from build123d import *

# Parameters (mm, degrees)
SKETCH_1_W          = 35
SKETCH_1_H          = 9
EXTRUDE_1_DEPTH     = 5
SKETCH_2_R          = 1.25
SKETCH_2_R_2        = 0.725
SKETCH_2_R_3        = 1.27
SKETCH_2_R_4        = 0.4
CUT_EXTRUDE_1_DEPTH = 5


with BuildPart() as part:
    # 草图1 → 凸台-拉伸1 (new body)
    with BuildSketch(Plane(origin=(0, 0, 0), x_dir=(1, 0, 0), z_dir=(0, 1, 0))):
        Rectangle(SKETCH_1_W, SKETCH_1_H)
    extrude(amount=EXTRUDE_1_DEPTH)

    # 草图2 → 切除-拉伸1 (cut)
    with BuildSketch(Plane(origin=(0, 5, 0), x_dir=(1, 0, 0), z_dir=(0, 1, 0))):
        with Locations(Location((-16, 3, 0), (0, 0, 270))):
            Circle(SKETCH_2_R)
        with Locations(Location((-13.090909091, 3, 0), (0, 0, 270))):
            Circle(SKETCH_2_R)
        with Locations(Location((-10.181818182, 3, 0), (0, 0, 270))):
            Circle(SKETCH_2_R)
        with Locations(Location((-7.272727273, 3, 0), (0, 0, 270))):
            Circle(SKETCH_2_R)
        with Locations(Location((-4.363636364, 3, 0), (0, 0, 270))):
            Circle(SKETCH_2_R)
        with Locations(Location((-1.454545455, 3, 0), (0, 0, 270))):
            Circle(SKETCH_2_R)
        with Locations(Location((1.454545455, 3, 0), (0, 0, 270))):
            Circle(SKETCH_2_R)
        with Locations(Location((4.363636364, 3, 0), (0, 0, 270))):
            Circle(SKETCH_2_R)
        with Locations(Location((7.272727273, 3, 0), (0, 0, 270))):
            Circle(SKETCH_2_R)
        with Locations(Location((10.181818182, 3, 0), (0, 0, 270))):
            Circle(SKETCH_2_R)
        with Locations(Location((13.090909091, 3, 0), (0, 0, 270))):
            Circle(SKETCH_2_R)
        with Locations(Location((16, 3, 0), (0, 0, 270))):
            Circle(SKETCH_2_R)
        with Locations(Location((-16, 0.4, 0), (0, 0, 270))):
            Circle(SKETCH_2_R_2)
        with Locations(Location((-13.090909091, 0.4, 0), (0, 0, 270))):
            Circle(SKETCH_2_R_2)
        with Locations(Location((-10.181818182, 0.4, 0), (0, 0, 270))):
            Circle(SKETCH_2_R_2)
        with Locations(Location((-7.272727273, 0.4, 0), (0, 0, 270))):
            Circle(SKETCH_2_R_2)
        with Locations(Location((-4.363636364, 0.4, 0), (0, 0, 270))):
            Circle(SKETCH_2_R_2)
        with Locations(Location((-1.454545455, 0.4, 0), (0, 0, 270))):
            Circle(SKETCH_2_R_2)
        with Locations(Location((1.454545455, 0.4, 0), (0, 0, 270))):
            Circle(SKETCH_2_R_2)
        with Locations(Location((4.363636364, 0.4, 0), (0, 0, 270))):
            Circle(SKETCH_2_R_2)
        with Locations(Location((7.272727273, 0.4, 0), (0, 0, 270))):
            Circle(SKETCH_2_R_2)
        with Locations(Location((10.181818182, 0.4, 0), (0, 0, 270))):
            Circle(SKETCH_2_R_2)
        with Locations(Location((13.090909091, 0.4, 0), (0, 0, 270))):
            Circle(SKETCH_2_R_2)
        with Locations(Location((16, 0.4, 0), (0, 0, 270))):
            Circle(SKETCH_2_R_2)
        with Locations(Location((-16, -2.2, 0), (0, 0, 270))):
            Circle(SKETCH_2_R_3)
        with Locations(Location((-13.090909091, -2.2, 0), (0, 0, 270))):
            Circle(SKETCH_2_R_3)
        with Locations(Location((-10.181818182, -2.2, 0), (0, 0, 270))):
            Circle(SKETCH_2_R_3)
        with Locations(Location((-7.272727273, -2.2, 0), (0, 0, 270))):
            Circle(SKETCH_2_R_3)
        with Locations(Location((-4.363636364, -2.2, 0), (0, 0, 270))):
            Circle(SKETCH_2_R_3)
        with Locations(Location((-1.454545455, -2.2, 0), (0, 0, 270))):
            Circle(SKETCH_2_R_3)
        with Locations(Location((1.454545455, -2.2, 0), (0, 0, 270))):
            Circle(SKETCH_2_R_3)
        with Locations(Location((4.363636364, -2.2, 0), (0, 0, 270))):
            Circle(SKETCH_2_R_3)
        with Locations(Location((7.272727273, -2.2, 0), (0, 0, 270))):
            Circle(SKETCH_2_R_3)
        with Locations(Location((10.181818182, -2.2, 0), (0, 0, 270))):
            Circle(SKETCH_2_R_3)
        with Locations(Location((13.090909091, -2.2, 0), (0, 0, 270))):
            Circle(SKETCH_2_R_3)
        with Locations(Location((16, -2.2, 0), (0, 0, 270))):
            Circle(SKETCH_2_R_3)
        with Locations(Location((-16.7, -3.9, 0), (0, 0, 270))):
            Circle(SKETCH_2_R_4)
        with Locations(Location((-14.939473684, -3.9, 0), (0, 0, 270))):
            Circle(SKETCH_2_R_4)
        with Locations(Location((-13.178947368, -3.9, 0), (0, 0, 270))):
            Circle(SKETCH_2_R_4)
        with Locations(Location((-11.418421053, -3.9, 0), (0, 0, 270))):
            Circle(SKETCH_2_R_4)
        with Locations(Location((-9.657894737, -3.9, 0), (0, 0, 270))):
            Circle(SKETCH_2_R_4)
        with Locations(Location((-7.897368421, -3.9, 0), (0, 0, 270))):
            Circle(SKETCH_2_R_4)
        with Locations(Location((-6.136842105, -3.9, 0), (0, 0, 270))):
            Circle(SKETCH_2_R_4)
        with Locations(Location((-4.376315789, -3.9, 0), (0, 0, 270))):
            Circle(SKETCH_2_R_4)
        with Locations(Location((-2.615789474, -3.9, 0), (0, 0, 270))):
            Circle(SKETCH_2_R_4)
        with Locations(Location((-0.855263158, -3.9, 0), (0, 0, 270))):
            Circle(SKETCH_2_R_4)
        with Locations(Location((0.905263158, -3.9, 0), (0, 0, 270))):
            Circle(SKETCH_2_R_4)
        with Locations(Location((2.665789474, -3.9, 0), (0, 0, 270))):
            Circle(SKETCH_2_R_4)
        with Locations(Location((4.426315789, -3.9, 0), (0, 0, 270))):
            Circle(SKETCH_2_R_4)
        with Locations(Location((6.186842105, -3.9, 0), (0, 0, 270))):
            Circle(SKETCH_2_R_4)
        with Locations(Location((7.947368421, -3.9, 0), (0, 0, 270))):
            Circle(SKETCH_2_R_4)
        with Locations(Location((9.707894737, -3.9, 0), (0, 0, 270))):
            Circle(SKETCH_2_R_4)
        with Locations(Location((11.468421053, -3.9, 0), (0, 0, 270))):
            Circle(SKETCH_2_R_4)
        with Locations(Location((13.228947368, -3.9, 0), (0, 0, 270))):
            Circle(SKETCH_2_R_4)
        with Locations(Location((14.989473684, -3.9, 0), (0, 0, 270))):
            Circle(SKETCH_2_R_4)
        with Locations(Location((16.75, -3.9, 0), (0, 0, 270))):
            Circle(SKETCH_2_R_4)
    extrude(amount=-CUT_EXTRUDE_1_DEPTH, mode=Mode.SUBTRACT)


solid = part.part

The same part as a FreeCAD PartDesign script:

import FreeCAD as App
import Part
import Sketcher
from FreeCAD import Vector

doc = App.newDocument("Part")
body = doc.addObject("PartDesign::Body", "Body")

# Sketch on XZ plane
sketch1 = body.newObject("Sketcher::SketchObject", "Sketch")
sketch1.AttachmentSupport = (doc.getObject("XZ_Plane"), [""])
sketch1.MapMode = "FlatFace"
sketch1.addGeometry([
    Part.LineSegment(Vector(-18, -4, 0), Vector(-18, 4, 0)),
    Part.LineSegment(Vector(-18, 4, 0), Vector(18, 4, 0)),
    Part.LineSegment(Vector(18, 4, 0), Vector(18, -4, 0)),
    Part.LineSegment(Vector(18, -4, 0), Vector(-18, -4, 0)),
], False)
sketch1.addConstraint([
    Sketcher.Constraint("Coincident", 0, 2, 1, 1),
    Sketcher.Constraint("Coincident", 1, 2, 2, 1),
    Sketcher.Constraint("Coincident", 2, 2, 3, 1),
    Sketcher.Constraint("Coincident", 3, 2, 0, 1),
    Sketcher.Constraint("Vertical", 0),
    Sketcher.Constraint("Horizontal", 1),
    Sketcher.Constraint("Vertical", 2),
    Sketcher.Constraint("Horizontal", 3),
    Sketcher.Constraint("Symmetric", 0, 2, 2, 2, -1, 1),
    Sketcher.Constraint("DistanceX", 1, 1, 1, 2, 35.0),
    Sketcher.Constraint("DistanceY", 0, 1, 0, 2, 9.0),
])
pad1 = body.newObject("PartDesign::Pad", "Pad")
pad1.Profile = sketch1
pad1.Length = 5
pad1.Reversed = True

# Sketch on XZ plane
sketch2 = body.newObject("Sketcher::SketchObject", "Sketch001")
sketch2.AttachmentSupport = (doc.getObject("XZ_Plane"), [""])
sketch2.MapMode = "FlatFace"
sketch2.AttachmentOffset = App.Placement(Vector(0, 0, -5), App.Rotation())
sketch2.addGeometry([
    Part.Circle(Vector(-16, -3, 0), Vector(0, 0, 1), 1.25),  # 0
    Part.Circle(Vector(-13.09, -3, 0), Vector(0, 0, 1), 1.25),  # 1
    Part.Circle(Vector(-10.18, -3, 0), Vector(0, 0, 1), 1.25),  # 2
    Part.Circle(Vector(-7.27, -3, 0), Vector(0, 0, 1), 1.25),  # 3
    Part.Circle(Vector(-4.36, -3, 0), Vector(0, 0, 1), 1.25),  # 4
    Part.Circle(Vector(-1.45, -3, 0), Vector(0, 0, 1), 1.25),  # 5
    Part.Circle(Vector(1.45, -3, 0), Vector(0, 0, 1), 1.25),  # 6
    Part.Circle(Vector(4.36, -3, 0), Vector(0, 0, 1), 1.25),  # 7
    Part.Circle(Vector(7.27, -3, 0), Vector(0, 0, 1), 1.25),  # 8
    Part.Circle(Vector(10.18, -3, 0), Vector(0, 0, 1), 1.25),  # 9
    Part.Circle(Vector(13.09, -3, 0), Vector(0, 0, 1), 1.25),  # 10
    Part.Circle(Vector(16, -3, 0), Vector(0, 0, 1), 1.25),  # 11
    Part.Circle(Vector(-16, -0.4, 0), Vector(0, 0, 1), 0.72),  # 12
    Part.Circle(Vector(-13.09, -0.4, 0), Vector(0, 0, 1), 0.72),  # 13
    Part.Circle(Vector(-10.18, -0.4, 0), Vector(0, 0, 1), 0.72),  # 14
    Part.Circle(Vector(-7.27, -0.4, 0), Vector(0, 0, 1), 0.72),  # 15
    Part.Circle(Vector(-4.36, -0.4, 0), Vector(0, 0, 1), 0.72),  # 16
    Part.Circle(Vector(-1.45, -0.4, 0), Vector(0, 0, 1), 0.72),  # 17
    Part.Circle(Vector(1.45, -0.4, 0), Vector(0, 0, 1), 0.72),  # 18
    Part.Circle(Vector(4.36, -0.4, 0), Vector(0, 0, 1), 0.72),  # 19
    Part.Circle(Vector(7.27, -0.4, 0), Vector(0, 0, 1), 0.72),  # 20
    Part.Circle(Vector(10.18, -0.4, 0), Vector(0, 0, 1), 0.72),  # 21
    Part.Circle(Vector(13.09, -0.4, 0), Vector(0, 0, 1), 0.72),  # 22
    Part.Circle(Vector(16, -0.4, 0), Vector(0, 0, 1), 0.72),  # 23
    Part.Circle(Vector(-16, 2.2, 0), Vector(0, 0, 1), 1.27),  # 24
    Part.Circle(Vector(-13.09, 2.2, 0), Vector(0, 0, 1), 1.27),  # 25
    Part.Circle(Vector(-10.18, 2.2, 0), Vector(0, 0, 1), 1.27),  # 26
    Part.Circle(Vector(-7.27, 2.2, 0), Vector(0, 0, 1), 1.27),  # 27
    Part.Circle(Vector(-4.36, 2.2, 0), Vector(0, 0, 1), 1.27),  # 28
    Part.Circle(Vector(-1.45, 2.2, 0), Vector(0, 0, 1), 1.27),  # 29
    Part.Circle(Vector(1.45, 2.2, 0), Vector(0, 0, 1), 1.27),  # 30
    Part.Circle(Vector(4.36, 2.2, 0), Vector(0, 0, 1), 1.27),  # 31
    Part.Circle(Vector(7.27, 2.2, 0), Vector(0, 0, 1), 1.27),  # 32
    Part.Circle(Vector(10.18, 2.2, 0), Vector(0, 0, 1), 1.27),  # 33
    Part.Circle(Vector(13.09, 2.2, 0), Vector(0, 0, 1), 1.27),  # 34
    Part.Circle(Vector(16, 2.2, 0), Vector(0, 0, 1), 1.27),  # 35
    Part.Circle(Vector(-16.7, 3.9, 0), Vector(0, 0, 1), 0.4),  # 36
    Part.Circle(Vector(-14.94, 3.9, 0), Vector(0, 0, 1), 0.4),  # 37
    Part.Circle(Vector(-13.18, 3.9, 0), Vector(0, 0, 1), 0.4),  # 38
    Part.Circle(Vector(-11.42, 3.9, 0), Vector(0, 0, 1), 0.4),  # 39
    Part.Circle(Vector(-9.66, 3.9, 0), Vector(0, 0, 1), 0.4),  # 40
    Part.Circle(Vector(-7.9, 3.9, 0), Vector(0, 0, 1), 0.4),  # 41
    Part.Circle(Vector(-6.14, 3.9, 0), Vector(0, 0, 1), 0.4),  # 42
    Part.Circle(Vector(-4.38, 3.9, 0), Vector(0, 0, 1), 0.4),  # 43
    Part.Circle(Vector(-2.62, 3.9, 0), Vector(0, 0, 1), 0.4),  # 44
    Part.Circle(Vector(-0.86, 3.9, 0), Vector(0, 0, 1), 0.4),  # 45
    Part.Circle(Vector(0.91, 3.9, 0), Vector(0, 0, 1), 0.4),  # 46
    Part.Circle(Vector(2.67, 3.9, 0), Vector(0, 0, 1), 0.4),  # 47
    Part.Circle(Vector(4.43, 3.9, 0), Vector(0, 0, 1), 0.4),  # 48
    Part.Circle(Vector(6.19, 3.9, 0), Vector(0, 0, 1), 0.4),  # 49
    Part.Circle(Vector(7.95, 3.9, 0), Vector(0, 0, 1), 0.4),  # 50
    Part.Circle(Vector(9.71, 3.9, 0), Vector(0, 0, 1), 0.4),  # 51
    Part.Circle(Vector(11.47, 3.9, 0), Vector(0, 0, 1), 0.4),  # 52
    Part.Circle(Vector(13.23, 3.9, 0), Vector(0, 0, 1), 0.4),  # 53
    Part.Circle(Vector(14.99, 3.9, 0), Vector(0, 0, 1), 0.4),  # 54
    Part.Circle(Vector(16.75, 3.9, 0), Vector(0, 0, 1), 0.4),  # 55
], False)
sketch2.addConstraint([
    Sketcher.Constraint("Equal", 0, 1),
    Sketcher.Constraint("Equal", 1, 2),
    Sketcher.Constraint("Equal", 2, 3),
    Sketcher.Constraint("Equal", 3, 4),
    Sketcher.Constraint("Equal", 4, 5),
    Sketcher.Constraint("Equal", 5, 6),
    Sketcher.Constraint("Equal", 6, 7),
    Sketcher.Constraint("Equal", 7, 8),
    Sketcher.Constraint("Equal", 8, 9),
    Sketcher.Constraint("Equal", 9, 10),
    Sketcher.Constraint("Equal", 10, 11),
    Sketcher.Constraint("Equal", 12, 13),
    Sketcher.Constraint("Equal", 13, 14),
    Sketcher.Constraint("Equal", 14, 15),
    Sketcher.Constraint("Equal", 15, 16),
    Sketcher.Constraint("Equal", 16, 17),
    Sketcher.Constraint("Equal", 17, 18),
    Sketcher.Constraint("Equal", 18, 19),
    Sketcher.Constraint("Equal", 19, 20),
    Sketcher.Constraint("Equal", 20, 21),
    Sketcher.Constraint("Equal", 21, 22),
    Sketcher.Constraint("Equal", 22, 23),
    Sketcher.Constraint("Equal", 24, 25),
    Sketcher.Constraint("Equal", 25, 26),
    Sketcher.Constraint("Equal", 26, 27),
    Sketcher.Constraint("Equal", 27, 28),
    Sketcher.Constraint("Equal", 28, 29),
    Sketcher.Constraint("Equal", 29, 30),
    Sketcher.Constraint("Equal", 30, 31),
    Sketcher.Constraint("Equal", 31, 32),
    Sketcher.Constraint("Equal", 32, 33),
    Sketcher.Constraint("Equal", 33, 34),
    Sketcher.Constraint("Equal", 34, 35),
    Sketcher.Constraint("Equal", 36, 37),
    Sketcher.Constraint("Equal", 37, 38),
    Sketcher.Constraint("Equal", 38, 39),
    Sketcher.Constraint("Equal", 39, 40),
    Sketcher.Constraint("Equal", 40, 41),
    Sketcher.Constraint("Equal", 41, 42),
    Sketcher.Constraint("Equal", 42, 43),
    Sketcher.Constraint("Equal", 43, 44),
    Sketcher.Constraint("Equal", 44, 45),
    Sketcher.Constraint("Equal", 45, 46),
    Sketcher.Constraint("Equal", 46, 47),
    Sketcher.Constraint("Equal", 47, 48),
    Sketcher.Constraint("Equal", 48, 49),
    Sketcher.Constraint("Equal", 49, 50),
    Sketcher.Constraint("Equal", 50, 51),
    Sketcher.Constraint("Equal", 51, 52),
    Sketcher.Constraint("Equal", 52, 53),
    Sketcher.Constraint("Equal", 53, 54),
    Sketcher.Constraint("Equal", 54, 55),
    Sketcher.Constraint("Symmetric", 5, 3, 6, 3, -2),
    Sketcher.Constraint("Symmetric", 4, 3, 7, 3, -2),
    Sketcher.Constraint("Symmetric", 3, 3, 8, 3, -2),
    Sketcher.Constraint("Symmetric", 2, 3, 9, 3, -2),
    Sketcher.Constraint("Symmetric", 1, 3, 10, 3, -2),
    Sketcher.Constraint("Symmetric", 0, 3, 11, 3, -2),
    Sketcher.Constraint("Symmetric", 17, 3, 18, 3, -2),
    Sketcher.Constraint("Symmetric", 16, 3, 19, 3, -2),
    Sketcher.Constraint("Symmetric", 15, 3, 20, 3, -2),
    Sketcher.Constraint("Symmetric", 14, 3, 21, 3, -2),
    Sketcher.Constraint("Symmetric", 13, 3, 22, 3, -2),
    Sketcher.Constraint("Symmetric", 12, 3, 23, 3, -2),
    Sketcher.Constraint("Symmetric", 29, 3, 30, 3, -2),
    Sketcher.Constraint("Symmetric", 28, 3, 31, 3, -2),
    Sketcher.Constraint("Symmetric", 27, 3, 32, 3, -2),
    Sketcher.Constraint("Symmetric", 26, 3, 33, 3, -2),
    Sketcher.Constraint("Symmetric", 25, 3, 34, 3, -2),
    Sketcher.Constraint("Symmetric", 24, 3, 35, 3, -2),
    Sketcher.Constraint("Horizontal", 0, 3, 1, 3),
    Sketcher.Constraint("Horizontal", 1, 3, 2, 3),
    Sketcher.Constraint("Horizontal", 2, 3, 3, 3),
    Sketcher.Constraint("Horizontal", 3, 3, 4, 3),
    Sketcher.Constraint("Horizontal", 4, 3, 5, 3),
    Sketcher.Constraint("Horizontal", 12, 3, 13, 3),
    Sketcher.Constraint("Horizontal", 13, 3, 14, 3),
    Sketcher.Constraint("Horizontal", 14, 3, 15, 3),
    Sketcher.Constraint("Horizontal", 15, 3, 16, 3),
    Sketcher.Constraint("Horizontal", 16, 3, 17, 3),
    Sketcher.Constraint("Horizontal", 24, 3, 25, 3),
    Sketcher.Constraint("Horizontal", 25, 3, 26, 3),
    Sketcher.Constraint("Horizontal", 26, 3, 27, 3),
    Sketcher.Constraint("Horizontal", 27, 3, 28, 3),
    Sketcher.Constraint("Horizontal", 28, 3, 29, 3),
    Sketcher.Constraint("Horizontal", 36, 3, 37, 3),
    Sketcher.Constraint("Horizontal", 37, 3, 38, 3),
    Sketcher.Constraint("Horizontal", 38, 3, 39, 3),
    Sketcher.Constraint("Horizontal", 39, 3, 40, 3),
    Sketcher.Constraint("Horizontal", 40, 3, 41, 3),
    Sketcher.Constraint("Horizontal", 41, 3, 42, 3),
    Sketcher.Constraint("Horizontal", 42, 3, 43, 3),
    Sketcher.Constraint("Horizontal", 43, 3, 44, 3),
    Sketcher.Constraint("Horizontal", 44, 3, 45, 3),
    Sketcher.Constraint("Horizontal", 45, 3, 46, 3),
    Sketcher.Constraint("Horizontal", 46, 3, 47, 3),
    Sketcher.Constraint("Horizontal", 47, 3, 48, 3),
    Sketcher.Constraint("Horizontal", 48, 3, 49, 3),
    Sketcher.Constraint("Horizontal", 49, 3, 50, 3),
    Sketcher.Constraint("Horizontal", 50, 3, 51, 3),
    Sketcher.Constraint("Horizontal", 51, 3, 52, 3),
    Sketcher.Constraint("Horizontal", 52, 3, 53, 3),
    Sketcher.Constraint("Horizontal", 53, 3, 54, 3),
    Sketcher.Constraint("Horizontal", 54, 3, 55, 3),
    Sketcher.Constraint("Vertical", 0, 3, 12, 3),
    Sketcher.Constraint("Vertical", 1, 3, 13, 3),
    Sketcher.Constraint("Vertical", 2, 3, 14, 3),
    Sketcher.Constraint("Vertical", 3, 3, 15, 3),
    Sketcher.Constraint("Vertical", 4, 3, 16, 3),
    Sketcher.Constraint("Vertical", 5, 3, 17, 3),
    Sketcher.Constraint("Vertical", 12, 3, 24, 3),
    Sketcher.Constraint("Vertical", 13, 3, 25, 3),
    Sketcher.Constraint("Vertical", 14, 3, 26, 3),
    Sketcher.Constraint("Vertical", 15, 3, 27, 3),
    Sketcher.Constraint("Vertical", 16, 3, 28, 3),
    Sketcher.Constraint("Vertical", 17, 3, 29, 3),
    Sketcher.Constraint("Diameter", 0, 2.5),
    Sketcher.Constraint("Diameter", 36, 0.8),
    Sketcher.Constraint("Diameter", 12, 1.45),
    Sketcher.Constraint("Diameter", 24, 2.54),
    Sketcher.Constraint("DistanceX", 0, 3, -1, 1, 16.0),
    Sketcher.Constraint("DistanceY", 0, 3, -1, 1, 3.0),
    Sketcher.Constraint("DistanceY", 12, 3, -1, 1, 0.4),
    Sketcher.Constraint("DistanceY", -1, 1, 24, 3, 2.2),
    Sketcher.Constraint("DistanceX", 36, 3, -1, 1, 16.7),
    Sketcher.Constraint("DistanceY", -1, 1, 36, 3, 3.9),
    Sketcher.Constraint("DistanceX", -1, 1, 55, 3, 16.75),
    Sketcher.Constraint("DistanceX", 1, 3, -1, 1, 13.090909),
    Sketcher.Constraint("DistanceX", 2, 3, -1, 1, 10.181818),
    Sketcher.Constraint("DistanceX", 39, 3, -1, 1, 11.418421),
    Sketcher.Constraint("DistanceX", 41, 3, -1, 1, 7.897368),
    Sketcher.Constraint("DistanceX", 44, 3, -1, 1, 2.615789),
    Sketcher.Constraint("DistanceX", -1, 1, 47, 3, 2.665789),
    Sketcher.Constraint("DistanceX", -1, 1, 50, 3, 7.947368),
    Sketcher.Constraint("DistanceX", -1, 1, 52, 3, 11.468421),
    Sketcher.Constraint("DistanceX", 2, 3, 3, 3, 2.909091),
    Sketcher.Constraint("DistanceX", 3, 3, 4, 3, 2.909091),
    Sketcher.Constraint("DistanceX", 4, 3, 5, 3, 2.909091),
    Sketcher.Constraint("DistanceX", 38, 3, 25, 3, 0.088038),
    Sketcher.Constraint("DistanceX", 43, 3, 28, 3, 0.012679),
    Sketcher.Constraint("DistanceX", 45, 3, 30, 3, 2.309809),
    Sketcher.Constraint("DistanceX", 29, 3, 46, 3, 2.359809),
    Sketcher.Constraint("DistanceX", 31, 3, 48, 3, 0.062679),
    Sketcher.Constraint("DistanceX", 34, 3, 53, 3, 0.138038),
    Sketcher.Constraint("DistanceX", 37, 3, -1, 1, 14.939474),
    Sketcher.Constraint("DistanceX", 40, 3, -1, 1, 9.657895),
    Sketcher.Constraint("DistanceX", 42, 3, -1, 1, 6.136842),
    Sketcher.Constraint("DistanceX", -1, 1, 49, 3, 6.186842),
    Sketcher.Constraint("DistanceX", -1, 1, 51, 3, 9.707895),
    Sketcher.Constraint("DistanceX", -1, 1, 54, 3, 14.989474),
])
pocket1 = body.newObject("PartDesign::Pocket", "Pocket")
pocket1.Profile = sketch2
pocket1.Length = 5
pocket1.Reversed = True

doc.recompute()
